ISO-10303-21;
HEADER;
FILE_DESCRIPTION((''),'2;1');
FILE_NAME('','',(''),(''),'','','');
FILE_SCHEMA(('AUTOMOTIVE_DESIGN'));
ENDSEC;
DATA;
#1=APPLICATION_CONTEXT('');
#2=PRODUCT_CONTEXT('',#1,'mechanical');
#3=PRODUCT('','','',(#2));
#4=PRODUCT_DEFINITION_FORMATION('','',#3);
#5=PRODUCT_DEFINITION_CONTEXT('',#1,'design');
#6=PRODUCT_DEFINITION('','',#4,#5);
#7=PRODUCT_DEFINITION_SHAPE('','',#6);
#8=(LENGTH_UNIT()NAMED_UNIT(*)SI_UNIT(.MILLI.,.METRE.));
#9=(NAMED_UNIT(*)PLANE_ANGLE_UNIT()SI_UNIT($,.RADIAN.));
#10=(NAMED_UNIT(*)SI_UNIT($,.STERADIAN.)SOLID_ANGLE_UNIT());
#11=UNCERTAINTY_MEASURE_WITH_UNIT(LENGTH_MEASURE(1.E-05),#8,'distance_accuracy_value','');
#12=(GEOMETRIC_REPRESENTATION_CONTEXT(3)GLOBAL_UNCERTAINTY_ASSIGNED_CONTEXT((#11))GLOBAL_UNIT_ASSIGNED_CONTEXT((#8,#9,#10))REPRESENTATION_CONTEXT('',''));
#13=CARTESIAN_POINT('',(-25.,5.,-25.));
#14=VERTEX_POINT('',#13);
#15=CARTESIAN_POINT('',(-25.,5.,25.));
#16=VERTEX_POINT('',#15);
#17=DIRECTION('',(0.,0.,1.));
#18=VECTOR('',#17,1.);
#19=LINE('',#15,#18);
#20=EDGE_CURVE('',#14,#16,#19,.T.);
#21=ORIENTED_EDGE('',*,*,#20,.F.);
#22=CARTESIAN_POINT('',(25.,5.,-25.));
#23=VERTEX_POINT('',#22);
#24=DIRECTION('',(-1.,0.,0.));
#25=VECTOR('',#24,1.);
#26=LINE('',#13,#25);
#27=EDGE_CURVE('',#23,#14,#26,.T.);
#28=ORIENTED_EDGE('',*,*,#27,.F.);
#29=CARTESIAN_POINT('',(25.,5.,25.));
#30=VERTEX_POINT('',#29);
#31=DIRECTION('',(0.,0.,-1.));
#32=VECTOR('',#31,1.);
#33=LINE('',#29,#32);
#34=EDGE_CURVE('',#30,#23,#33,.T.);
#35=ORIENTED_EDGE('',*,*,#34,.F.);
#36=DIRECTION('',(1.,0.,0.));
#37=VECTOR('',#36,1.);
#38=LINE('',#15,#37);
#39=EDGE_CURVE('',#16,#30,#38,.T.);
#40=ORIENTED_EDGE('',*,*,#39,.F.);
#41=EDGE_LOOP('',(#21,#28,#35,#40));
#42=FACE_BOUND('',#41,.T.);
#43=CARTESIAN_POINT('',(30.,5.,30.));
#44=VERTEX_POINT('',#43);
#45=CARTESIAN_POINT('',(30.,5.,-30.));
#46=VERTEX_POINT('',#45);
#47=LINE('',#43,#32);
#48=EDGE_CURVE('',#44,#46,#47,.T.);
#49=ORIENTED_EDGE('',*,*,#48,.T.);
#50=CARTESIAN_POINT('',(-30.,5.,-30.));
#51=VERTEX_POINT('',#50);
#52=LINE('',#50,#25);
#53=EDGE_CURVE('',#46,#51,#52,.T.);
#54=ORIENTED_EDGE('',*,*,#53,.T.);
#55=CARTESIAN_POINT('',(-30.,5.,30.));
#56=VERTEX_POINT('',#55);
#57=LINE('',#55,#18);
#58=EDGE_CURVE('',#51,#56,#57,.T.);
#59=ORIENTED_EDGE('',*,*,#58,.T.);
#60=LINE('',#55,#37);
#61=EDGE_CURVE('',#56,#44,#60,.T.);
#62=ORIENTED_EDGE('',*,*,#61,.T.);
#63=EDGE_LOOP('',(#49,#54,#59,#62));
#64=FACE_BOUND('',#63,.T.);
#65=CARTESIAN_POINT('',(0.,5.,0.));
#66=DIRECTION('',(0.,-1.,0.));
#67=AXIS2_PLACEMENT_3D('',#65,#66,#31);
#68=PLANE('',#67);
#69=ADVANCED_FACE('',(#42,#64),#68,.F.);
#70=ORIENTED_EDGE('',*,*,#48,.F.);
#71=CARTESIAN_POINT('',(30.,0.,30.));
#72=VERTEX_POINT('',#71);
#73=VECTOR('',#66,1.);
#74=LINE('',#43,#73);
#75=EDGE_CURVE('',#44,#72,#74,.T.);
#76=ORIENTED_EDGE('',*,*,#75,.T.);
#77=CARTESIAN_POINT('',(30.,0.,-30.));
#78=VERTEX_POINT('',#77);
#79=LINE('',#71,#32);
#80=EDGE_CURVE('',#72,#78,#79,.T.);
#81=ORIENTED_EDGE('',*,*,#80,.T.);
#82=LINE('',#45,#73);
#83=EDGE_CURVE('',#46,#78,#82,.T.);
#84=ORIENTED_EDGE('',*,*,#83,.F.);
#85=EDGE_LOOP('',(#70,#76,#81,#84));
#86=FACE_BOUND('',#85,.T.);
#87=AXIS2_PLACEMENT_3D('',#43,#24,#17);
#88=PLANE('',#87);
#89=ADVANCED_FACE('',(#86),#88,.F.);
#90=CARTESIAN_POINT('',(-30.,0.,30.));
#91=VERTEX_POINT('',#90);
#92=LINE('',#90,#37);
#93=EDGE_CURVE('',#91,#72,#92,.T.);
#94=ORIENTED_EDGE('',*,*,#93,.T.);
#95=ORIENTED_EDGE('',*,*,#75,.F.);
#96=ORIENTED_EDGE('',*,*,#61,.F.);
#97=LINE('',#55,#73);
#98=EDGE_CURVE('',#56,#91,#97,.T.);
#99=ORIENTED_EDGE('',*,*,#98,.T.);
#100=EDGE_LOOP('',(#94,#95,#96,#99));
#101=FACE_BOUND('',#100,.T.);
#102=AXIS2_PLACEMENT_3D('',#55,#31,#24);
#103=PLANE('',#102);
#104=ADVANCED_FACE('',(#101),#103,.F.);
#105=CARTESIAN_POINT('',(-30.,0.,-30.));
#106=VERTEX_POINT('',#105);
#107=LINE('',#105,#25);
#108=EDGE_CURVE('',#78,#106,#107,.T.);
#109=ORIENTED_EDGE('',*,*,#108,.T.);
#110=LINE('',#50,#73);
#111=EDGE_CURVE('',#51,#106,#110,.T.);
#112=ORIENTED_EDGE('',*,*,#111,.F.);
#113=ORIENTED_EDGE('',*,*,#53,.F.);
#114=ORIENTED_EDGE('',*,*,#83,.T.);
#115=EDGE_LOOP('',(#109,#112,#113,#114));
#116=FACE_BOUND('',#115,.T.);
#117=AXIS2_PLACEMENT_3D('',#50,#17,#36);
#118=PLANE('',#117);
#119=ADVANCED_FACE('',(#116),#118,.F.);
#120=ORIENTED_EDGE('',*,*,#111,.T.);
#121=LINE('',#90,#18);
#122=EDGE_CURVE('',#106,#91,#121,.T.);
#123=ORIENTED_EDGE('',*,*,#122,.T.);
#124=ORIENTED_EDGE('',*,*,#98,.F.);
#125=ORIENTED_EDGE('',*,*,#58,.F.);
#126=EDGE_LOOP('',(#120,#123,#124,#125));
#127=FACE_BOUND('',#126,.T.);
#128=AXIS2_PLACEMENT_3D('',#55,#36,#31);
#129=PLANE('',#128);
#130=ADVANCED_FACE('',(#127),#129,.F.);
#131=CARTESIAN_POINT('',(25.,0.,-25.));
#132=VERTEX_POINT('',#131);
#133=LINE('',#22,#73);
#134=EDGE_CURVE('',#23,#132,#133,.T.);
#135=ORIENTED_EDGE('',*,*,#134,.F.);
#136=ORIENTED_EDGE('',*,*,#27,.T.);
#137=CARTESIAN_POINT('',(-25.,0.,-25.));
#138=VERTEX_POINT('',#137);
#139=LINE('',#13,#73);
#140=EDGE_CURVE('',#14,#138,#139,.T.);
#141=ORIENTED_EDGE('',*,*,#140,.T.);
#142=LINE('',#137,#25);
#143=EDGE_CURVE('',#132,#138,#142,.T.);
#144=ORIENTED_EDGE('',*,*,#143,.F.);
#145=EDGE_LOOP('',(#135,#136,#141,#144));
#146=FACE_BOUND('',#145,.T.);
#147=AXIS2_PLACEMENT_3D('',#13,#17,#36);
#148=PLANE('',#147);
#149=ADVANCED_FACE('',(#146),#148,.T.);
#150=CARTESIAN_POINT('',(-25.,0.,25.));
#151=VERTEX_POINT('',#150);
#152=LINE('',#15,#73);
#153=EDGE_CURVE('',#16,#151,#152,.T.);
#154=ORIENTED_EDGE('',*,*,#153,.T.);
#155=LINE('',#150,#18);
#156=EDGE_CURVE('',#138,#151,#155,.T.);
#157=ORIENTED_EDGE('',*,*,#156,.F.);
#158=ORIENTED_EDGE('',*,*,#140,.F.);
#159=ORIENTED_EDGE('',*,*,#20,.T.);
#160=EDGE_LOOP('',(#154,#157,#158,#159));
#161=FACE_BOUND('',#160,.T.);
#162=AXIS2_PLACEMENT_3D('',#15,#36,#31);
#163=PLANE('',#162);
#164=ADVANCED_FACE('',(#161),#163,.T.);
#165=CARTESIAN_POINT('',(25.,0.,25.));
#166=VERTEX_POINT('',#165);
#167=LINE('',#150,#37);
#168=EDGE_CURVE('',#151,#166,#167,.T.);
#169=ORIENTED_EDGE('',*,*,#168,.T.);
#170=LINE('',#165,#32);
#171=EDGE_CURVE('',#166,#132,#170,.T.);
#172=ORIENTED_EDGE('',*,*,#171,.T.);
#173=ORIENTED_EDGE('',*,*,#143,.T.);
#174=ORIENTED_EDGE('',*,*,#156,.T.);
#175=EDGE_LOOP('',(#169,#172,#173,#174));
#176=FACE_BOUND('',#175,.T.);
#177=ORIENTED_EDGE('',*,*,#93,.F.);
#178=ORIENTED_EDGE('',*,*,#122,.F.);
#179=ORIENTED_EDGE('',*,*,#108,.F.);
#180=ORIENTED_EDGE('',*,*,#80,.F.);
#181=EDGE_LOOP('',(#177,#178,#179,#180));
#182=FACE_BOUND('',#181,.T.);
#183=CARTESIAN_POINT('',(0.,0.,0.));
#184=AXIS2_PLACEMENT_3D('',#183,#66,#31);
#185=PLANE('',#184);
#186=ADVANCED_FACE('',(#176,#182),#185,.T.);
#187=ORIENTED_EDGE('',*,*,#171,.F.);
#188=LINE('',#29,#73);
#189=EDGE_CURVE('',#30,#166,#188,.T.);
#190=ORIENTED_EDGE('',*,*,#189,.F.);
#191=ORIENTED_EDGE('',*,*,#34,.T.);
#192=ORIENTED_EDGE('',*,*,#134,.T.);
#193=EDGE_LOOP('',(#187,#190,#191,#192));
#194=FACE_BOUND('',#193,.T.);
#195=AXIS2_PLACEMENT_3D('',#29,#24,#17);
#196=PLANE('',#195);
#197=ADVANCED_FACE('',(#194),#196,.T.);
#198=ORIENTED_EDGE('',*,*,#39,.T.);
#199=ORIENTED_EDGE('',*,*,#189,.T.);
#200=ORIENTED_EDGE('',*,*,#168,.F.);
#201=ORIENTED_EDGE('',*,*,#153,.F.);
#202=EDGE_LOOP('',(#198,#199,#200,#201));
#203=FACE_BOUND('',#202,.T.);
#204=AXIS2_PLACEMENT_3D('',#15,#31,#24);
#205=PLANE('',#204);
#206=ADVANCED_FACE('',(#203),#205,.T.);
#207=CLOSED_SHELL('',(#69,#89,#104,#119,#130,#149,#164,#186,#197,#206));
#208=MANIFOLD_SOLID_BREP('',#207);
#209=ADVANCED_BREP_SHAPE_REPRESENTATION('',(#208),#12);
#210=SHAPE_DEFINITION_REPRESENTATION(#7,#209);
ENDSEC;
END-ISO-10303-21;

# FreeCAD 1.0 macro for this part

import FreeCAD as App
import Part
import Sketcher
from FreeCAD import Vector
Q = App.Units.Quantity


def add_polygon(sketch, points):
    """Adds a closed chain of lines whose ends are joined by coincident constraints."""
    first, n = sketch.GeometryCount, len(points)
    for a, b in zip(points, points[1:] + points[:1]):
        sketch.addGeometry(Part.LineSegment(App.Vector(*a, 0), App.Vector(*b, 0)), False)
    for i in range(n):
        sketch.addConstraint(Sketcher.Constraint("Coincident", first + i, 2, first + (i + 1) % n, 1))

doc = App.newDocument("Part")
body = doc.addObject("PartDesign::Body", "Body")

sketch1 = body.newObject("Sketcher::SketchObject", "Sketch")
sketch1.AttachmentSupport = (doc.getObject("XZ_Plane"), [""])
sketch1.MapMode = "FlatFace"
add_polygon(sketch1, [(-30, -30), (-30, 30), (30, 30), (30, -30)])
add_polygon(sketch1, [(25, 25), (-25, 25), (-25, -25), (25, -25)])
sketch1.addConstraint([
    Sketcher.Constraint("Vertical", 0),
    Sketcher.Constraint("Horizontal", 1),
    Sketcher.Constraint("Vertical", 2),
    Sketcher.Constraint("Horizontal", 3),
    Sketcher.Constraint("Horizontal", 4),
    Sketcher.Constraint("Vertical", 5),
    Sketcher.Constraint("Horizontal", 6),
    Sketcher.Constraint("Vertical", 7),
    Sketcher.Constraint("Symmetric", 0, 2, 2, 2, -1, 1),
    Sketcher.Constraint("Symmetric", 4, 2, 6, 2, -1, 1),
    Sketcher.Constraint("Equal", 3, 0),
    Sketcher.Constraint("Equal", 6, 5),
    Sketcher.Constraint("DistanceX", 1, 1, 1, 2, Q("60 mm")),
    Sketcher.Constraint("DistanceX", 4, 2, 4, 1, Q("50 mm")),
])
pad1 = body.newObject("PartDesign::Pad", "Pad")
pad1.Profile = sketch1
pad1.Length = 5
pad1.Reversed = True

doc.recompute()
